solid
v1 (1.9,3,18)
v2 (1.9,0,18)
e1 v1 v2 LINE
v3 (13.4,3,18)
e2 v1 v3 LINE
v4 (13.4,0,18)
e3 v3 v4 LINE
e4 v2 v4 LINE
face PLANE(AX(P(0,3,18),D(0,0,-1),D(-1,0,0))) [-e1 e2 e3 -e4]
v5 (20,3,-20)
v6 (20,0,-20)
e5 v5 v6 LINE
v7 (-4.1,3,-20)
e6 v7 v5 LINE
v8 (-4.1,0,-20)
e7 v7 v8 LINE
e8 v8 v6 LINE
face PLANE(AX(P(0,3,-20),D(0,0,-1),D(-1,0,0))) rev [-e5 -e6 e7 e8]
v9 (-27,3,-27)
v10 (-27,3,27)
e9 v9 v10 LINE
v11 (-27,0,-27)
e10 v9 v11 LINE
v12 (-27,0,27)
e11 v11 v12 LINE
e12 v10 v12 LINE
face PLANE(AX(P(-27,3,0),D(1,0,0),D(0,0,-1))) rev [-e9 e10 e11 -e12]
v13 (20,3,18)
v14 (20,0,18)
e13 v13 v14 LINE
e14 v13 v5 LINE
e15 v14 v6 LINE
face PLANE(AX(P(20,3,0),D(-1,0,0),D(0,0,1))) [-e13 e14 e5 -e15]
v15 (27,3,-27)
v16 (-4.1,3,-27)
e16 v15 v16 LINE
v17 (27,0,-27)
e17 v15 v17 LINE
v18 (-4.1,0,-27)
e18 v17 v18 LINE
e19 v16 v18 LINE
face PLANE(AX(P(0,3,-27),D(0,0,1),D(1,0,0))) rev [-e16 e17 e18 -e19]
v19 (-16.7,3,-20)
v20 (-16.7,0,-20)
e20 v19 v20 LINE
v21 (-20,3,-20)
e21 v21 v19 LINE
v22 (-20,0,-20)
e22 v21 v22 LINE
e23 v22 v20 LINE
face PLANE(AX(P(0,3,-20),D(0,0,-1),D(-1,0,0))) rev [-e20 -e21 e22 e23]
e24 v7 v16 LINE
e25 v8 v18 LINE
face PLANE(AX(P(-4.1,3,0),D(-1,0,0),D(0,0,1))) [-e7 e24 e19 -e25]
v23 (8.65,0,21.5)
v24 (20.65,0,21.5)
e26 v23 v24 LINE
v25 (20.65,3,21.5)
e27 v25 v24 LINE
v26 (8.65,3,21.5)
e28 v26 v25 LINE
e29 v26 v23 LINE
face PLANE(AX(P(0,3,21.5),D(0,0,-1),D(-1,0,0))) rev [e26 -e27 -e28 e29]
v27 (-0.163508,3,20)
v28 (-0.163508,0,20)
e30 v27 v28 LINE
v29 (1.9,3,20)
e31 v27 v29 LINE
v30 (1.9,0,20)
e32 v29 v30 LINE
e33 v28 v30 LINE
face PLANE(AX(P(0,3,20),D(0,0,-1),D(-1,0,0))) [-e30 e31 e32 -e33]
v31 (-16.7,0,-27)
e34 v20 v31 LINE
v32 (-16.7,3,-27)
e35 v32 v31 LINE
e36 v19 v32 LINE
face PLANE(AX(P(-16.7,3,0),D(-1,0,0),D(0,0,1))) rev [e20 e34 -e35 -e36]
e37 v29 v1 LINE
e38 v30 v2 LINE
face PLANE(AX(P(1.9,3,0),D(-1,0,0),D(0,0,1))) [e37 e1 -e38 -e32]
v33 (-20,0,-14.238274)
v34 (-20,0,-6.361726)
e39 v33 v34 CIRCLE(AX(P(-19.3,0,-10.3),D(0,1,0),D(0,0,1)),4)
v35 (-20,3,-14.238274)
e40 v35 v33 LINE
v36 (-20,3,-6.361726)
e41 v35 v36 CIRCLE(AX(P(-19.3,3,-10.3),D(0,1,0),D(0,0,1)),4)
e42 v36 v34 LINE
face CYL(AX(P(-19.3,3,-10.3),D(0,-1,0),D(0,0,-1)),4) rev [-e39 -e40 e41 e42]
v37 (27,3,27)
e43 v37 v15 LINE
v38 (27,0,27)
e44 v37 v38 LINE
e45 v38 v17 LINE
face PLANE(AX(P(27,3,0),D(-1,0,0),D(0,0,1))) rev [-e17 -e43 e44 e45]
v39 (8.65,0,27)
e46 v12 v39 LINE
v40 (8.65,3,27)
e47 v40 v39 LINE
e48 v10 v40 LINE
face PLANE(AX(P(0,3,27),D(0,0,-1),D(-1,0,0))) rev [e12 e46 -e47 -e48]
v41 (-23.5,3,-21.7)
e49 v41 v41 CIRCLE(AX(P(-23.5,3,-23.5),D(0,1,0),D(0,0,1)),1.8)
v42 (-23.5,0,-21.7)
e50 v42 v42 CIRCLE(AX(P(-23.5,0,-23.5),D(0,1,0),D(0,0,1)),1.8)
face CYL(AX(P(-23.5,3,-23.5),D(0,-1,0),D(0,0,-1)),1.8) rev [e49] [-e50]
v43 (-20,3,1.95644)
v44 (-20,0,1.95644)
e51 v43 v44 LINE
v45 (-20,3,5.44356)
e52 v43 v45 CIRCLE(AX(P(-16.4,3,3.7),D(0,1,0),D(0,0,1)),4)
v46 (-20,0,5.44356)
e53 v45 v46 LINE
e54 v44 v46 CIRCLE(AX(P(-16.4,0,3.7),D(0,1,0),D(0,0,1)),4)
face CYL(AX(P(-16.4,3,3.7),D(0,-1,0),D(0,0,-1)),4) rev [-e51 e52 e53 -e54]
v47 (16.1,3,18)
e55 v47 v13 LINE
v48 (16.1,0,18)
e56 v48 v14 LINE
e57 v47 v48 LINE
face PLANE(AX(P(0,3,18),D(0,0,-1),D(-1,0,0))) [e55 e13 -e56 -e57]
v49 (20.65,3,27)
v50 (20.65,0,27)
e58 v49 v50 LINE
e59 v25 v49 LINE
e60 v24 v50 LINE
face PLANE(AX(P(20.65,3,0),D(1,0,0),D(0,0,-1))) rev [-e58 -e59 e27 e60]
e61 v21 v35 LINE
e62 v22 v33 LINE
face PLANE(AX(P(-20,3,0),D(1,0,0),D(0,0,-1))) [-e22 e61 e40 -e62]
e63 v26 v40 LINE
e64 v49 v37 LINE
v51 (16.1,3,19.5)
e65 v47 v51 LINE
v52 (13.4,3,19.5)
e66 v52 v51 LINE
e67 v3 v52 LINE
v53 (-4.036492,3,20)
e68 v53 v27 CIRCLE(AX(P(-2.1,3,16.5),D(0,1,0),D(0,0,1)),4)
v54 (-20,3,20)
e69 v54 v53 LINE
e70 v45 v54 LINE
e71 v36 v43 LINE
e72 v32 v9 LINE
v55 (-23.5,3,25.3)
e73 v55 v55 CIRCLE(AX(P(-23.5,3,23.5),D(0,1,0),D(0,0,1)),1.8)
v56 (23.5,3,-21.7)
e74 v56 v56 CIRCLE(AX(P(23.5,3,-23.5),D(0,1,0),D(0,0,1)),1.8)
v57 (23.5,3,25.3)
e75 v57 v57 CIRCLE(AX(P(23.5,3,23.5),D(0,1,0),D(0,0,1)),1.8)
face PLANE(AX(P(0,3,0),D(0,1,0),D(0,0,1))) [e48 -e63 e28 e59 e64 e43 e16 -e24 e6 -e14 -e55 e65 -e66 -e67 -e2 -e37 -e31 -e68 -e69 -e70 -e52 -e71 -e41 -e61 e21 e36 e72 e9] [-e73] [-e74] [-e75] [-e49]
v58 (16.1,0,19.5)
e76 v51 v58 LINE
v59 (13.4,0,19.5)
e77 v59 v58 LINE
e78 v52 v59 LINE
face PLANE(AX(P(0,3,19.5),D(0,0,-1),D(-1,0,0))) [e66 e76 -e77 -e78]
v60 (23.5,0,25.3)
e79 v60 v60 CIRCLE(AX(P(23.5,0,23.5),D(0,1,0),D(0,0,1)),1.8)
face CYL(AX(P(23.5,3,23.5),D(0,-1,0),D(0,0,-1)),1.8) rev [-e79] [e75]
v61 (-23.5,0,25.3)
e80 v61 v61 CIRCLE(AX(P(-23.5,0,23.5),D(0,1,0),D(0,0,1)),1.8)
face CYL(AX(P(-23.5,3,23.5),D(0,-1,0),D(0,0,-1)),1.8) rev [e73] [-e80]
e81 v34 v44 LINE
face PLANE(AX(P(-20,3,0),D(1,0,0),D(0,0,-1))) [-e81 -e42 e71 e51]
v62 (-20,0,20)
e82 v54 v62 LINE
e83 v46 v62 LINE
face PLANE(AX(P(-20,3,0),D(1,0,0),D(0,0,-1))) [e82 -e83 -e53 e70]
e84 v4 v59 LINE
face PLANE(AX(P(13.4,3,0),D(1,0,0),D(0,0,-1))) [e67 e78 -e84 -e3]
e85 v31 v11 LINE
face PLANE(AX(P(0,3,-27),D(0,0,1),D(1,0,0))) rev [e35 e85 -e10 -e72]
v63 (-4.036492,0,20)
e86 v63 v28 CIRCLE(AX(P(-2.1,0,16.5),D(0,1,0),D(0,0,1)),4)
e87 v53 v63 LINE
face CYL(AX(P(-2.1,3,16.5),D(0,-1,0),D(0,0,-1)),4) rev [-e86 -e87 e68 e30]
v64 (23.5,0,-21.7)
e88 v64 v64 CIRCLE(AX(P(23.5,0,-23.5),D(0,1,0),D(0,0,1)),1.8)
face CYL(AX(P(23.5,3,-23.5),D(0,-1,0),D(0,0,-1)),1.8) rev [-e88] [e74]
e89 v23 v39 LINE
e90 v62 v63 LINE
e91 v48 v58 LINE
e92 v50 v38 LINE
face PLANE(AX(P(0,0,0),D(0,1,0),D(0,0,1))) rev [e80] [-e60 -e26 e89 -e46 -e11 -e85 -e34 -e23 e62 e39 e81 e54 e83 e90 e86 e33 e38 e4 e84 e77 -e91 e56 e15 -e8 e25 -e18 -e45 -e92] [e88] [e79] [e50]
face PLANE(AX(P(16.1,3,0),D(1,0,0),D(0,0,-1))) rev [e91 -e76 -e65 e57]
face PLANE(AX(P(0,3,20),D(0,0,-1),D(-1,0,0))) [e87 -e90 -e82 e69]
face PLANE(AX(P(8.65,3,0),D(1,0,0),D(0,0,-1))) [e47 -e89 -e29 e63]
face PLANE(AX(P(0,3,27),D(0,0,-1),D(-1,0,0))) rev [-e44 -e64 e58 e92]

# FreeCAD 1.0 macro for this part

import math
import FreeCAD as App
import Part
import Sketcher
from FreeCAD import Vector
Q = App.Units.Quantity

doc = App.newDocument("Part")
params = doc.addObject("Spreadsheet::Sheet", "Params")
for row, (alias, value) in enumerate([
    ("sketch1_radius", "4 mm"),
    ("sketch1_diameter", "3.6 mm"),
    ("sketch1_width", "12 mm"),
    ("sketch1_height", "54 mm"),
    ("sketch1_height2", "7 mm"),
    ("pad1_length", "3 mm"),
], start=1):
    params.set(f"A{row}", alias)
    params.set(f"B{row}", "=" + value)
    params.setAlias(f"B{row}", alias)

body = doc.addObject("PartDesign::Body", "Body")

# Sketch on XZ plane
sketch1 = body.newObject("Sketcher::SketchObject", "Sketch")
sketch1.AttachmentSupport = (doc.getObject("XZ_Plane"), [""])
sketch1.MapMode = "FlatFace"
sketch1.addGeometry(Part.LineSegment(Vector(8.65, 27, 0), Vector(8.65, 21.5, 0)), False)
sketch1.addGeometry(Part.LineSegment(Vector(8.65, 21.5, 0), Vector(20.65, 21.5, 0)), False)
sketch1.addGeometry(Part.LineSegment(Vector(20.65, 21.5, 0), Vector(20.65, 27, 0)), False)
sketch1.addGeometry(Part.LineSegment(Vector(20.65, 27, 0), Vector(27, 27, 0)), False)
sketch1.addGeometry(Part.LineSegment(Vector(27, 27, 0), Vector(27, -27, 0)), False)
sketch1.addGeometry(Part.LineSegment(Vector(27, -27, 0), Vector(-4.1, -27, 0)), False)
sketch1.addGeometry(Part.LineSegment(Vector(-4.1, -27, 0), Vector(-4.1, -20, 0)), False)
sketch1.addGeometry(Part.LineSegment(Vector(-4.1, -20, 0), Vector(20, -20, 0)), False)
sketch1.addGeometry(Part.LineSegment(Vector(20, -20, 0), Vector(20, 18, 0)), False)
sketch1.addGeometry(Part.LineSegment(Vector(20, 18, 0), Vector(16.1, 18, 0)), False)
sketch1.addGeometry(Part.LineSegment(Vector(16.1, 18, 0), Vector(16.1, 19.5, 0)), False)
sketch1.addGeometry(Part.LineSegment(Vector(16.1, 19.5, 0), Vector(13.4, 19.5, 0)), False)
sketch1.addGeometry(Part.LineSegment(Vector(13.4, 19.5, 0), Vector(13.4, 18, 0)), False)
sketch1.addGeometry(Part.LineSegment(Vector(13.4, 18, 0), Vector(1.9, 18, 0)), False)
sketch1.addGeometry(Part.LineSegment(Vector(1.9, 18, 0), Vector(1.9, 20, 0)), False)
sketch1.addGeometry(Part.LineSegment(Vector(1.9, 20, 0), Vector(-0.163508, 20, 0)), False)
sketch1.addGeometry(Part.ArcOfCircle(Part.Circle(Vector(-2.1, 16.5, 0), Vector(0, 0, 1), 4), math.radians(61.044976), math.radians(118.955024)), False)
sketch1.addGeometry(Part.LineSegment(Vector(-4.036492, 20, 0), Vector(-20, 20, 0)), False)
sketch1.addGeometry(Part.LineSegment(Vector(-20, 20, 0), Vector(-20, 5.44356, 0)), False)
sketch1.addGeometry(Part.ArcOfCircle(Part.Circle(Vector(-16.4, 3.7, 0), Vector(0, 0, 1), 4), math.radians(154.158067), math.radians(205.841933)), False)
sketch1.addGeometry(Part.LineSegment(Vector(-20, 1.95644, 0), Vector(-20, -6.361726, 0)), False)
sketch1.addGeometry(Part.ArcOfCircle(Part.Circle(Vector(-19.3, -10.3, 0), Vector(0, 0, 1), 4), math.radians(100.078658), math.radians(259.921342)), False)
sketch1.addGeometry(Part.LineSegment(Vector(-20, -14.238274, 0), Vector(-20, -20, 0)), False)
sketch1.addGeometry(Part.LineSegment(Vector(-20, -20, 0), Vector(-16.7, -20, 0)), False)
sketch1.addGeometry(Part.LineSegment(Vector(-16.7, -20, 0), Vector(-16.7, -27, 0)), False)
sketch1.addGeometry(Part.LineSegment(Vector(-16.7, -27, 0), Vector(-27, -27, 0)), False)
sketch1.addGeometry(Part.LineSegment(Vector(-27, -27, 0), Vector(-27, 27, 0)), False)
sketch1.addGeometry(Part.LineSegment(Vector(-27, 27, 0), Vector(8.65, 27, 0)), False)
sketch1.addGeometry(Part.Circle(Vector(-23.5, 23.5, 0), Vector(0, 0, 1), 1.8), False)
sketch1.addGeometry(Part.Circle(Vector(-23.5, -23.5, 0), Vector(0, 0, 1), 1.8), False)
sketch1.addGeometry(Part.Circle(Vector(23.5, 23.5, 0), Vector(0, 0, 1), 1.8), False)
sketch1.addGeometry(Part.Circle(Vector(23.5, -23.5, 0), Vector(0, 0, 1), 1.8), False)
sketch1.addConstraint(Sketcher.Constraint("Coincident", 0, 2, 1, 1))
sketch1.addConstraint(Sketcher.Constraint("Coincident", 1, 2, 2, 1))
sketch1.addConstraint(Sketcher.Constraint("Coincident", 2, 2, 3, 1))
sketch1.addConstraint(Sketcher.Constraint("Coincident", 3, 2, 4, 1))
sketch1.addConstraint(Sketcher.Constraint("Coincident", 4, 2, 5, 1))
sketch1.addConstraint(Sketcher.Constraint("Coincident", 5, 2, 6, 1))
sketch1.addConstraint(Sketcher.Constraint("Coincident", 6, 2, 7, 1))
sketch1.addConstraint(Sketcher.Constraint("Coincident", 7, 2, 8, 1))
sketch1.addConstraint(Sketcher.Constraint("Coincident", 8, 2, 9, 1))
sketch1.addConstraint(Sketcher.Constraint("Coincident", 9, 2, 10, 1))
sketch1.addConstraint(Sketcher.Constraint("Coincident", 10, 2, 11, 1))
sketch1.addConstraint(Sketcher.Constraint("Coincident", 11, 2, 12, 1))
sketch1.addConstraint(Sketcher.Constraint("Coincident", 12, 2, 13, 1))
sketch1.addConstraint(Sketcher.Constraint("Coincident", 13, 2, 14, 1))
sketch1.addConstraint(Sketcher.Constraint("Coincident", 14, 2, 15, 1))
sketch1.addConstraint(Sketcher.Constraint("Coincident", 15, 2, 16, 1))
sketch1.addConstraint(Sketcher.Constraint("Coincident", 16, 2, 17, 1))
sketch1.addConstraint(Sketcher.Constraint("Coincident", 17, 2, 18, 1))
sketch1.addConstraint(Sketcher.Constraint("Coincident", 18, 2, 19, 1))
sketch1.addConstraint(Sketcher.Constraint("Coincident", 19, 2, 20, 1))
sketch1.addConstraint(Sketcher.Constraint("Coincident", 20, 2, 21, 1))
sketch1.addConstraint(Sketcher.Constraint("Coincident", 21, 2, 22, 1))
sketch1.addConstraint(Sketcher.Constraint("Coincident", 22, 2, 23, 1))
sketch1.addConstraint(Sketcher.Constraint("Coincident", 23, 2, 24, 1))
sketch1.addConstraint(Sketcher.Constraint("Coincident", 24, 2, 25, 1))
sketch1.addConstraint(Sketcher.Constraint("Coincident", 25, 2, 26, 1))
sketch1.addConstraint(Sketcher.Constraint("Coincident", 26, 2, 27, 1))
sketch1.addConstraint(Sketcher.Constraint("Coincident", 27, 2, 0, 1))
sketch1.addConstraint(Sketcher.Constraint("Vertical", 0))
sketch1.addConstraint(Sketcher.Constraint("Horizontal", 1))
sketch1.addConstraint(Sketcher.Constraint("Vertical", 2))
sketch1.addConstraint(Sketcher.Constraint("Horizontal", 3))
sketch1.addConstraint(Sketcher.Constraint("Vertical", 4))
sketch1.addConstraint(Sketcher.Constraint("Horizontal", 5))
sketch1.addConstraint(Sketcher.Constraint("Vertical", 6))
sketch1.addConstraint(Sketcher.Constraint("Horizontal", 7))
sketch1.addConstraint(Sketcher.Constraint("Vertical", 8))
sketch1.addConstraint(Sketcher.Constraint("Horizontal", 9))
sketch1.addConstraint(Sketcher.Constraint("Vertical", 10))
sketch1.addConstraint(Sketcher.Constraint("Horizontal", 11))
sketch1.addConstraint(Sketcher.Constraint("Vertical", 12))
sketch1.addConstraint(Sketcher.Constraint("Horizontal", 13))
sketch1.addConstraint(Sketcher.Constraint("Vertical", 14))
sketch1.addConstraint(Sketcher.Constraint("Horizontal", 15))
sketch1.addConstraint(Sketcher.Constraint("Horizontal", 17))
sketch1.addConstraint(Sketcher.Constraint("Vertical", 18))
sketch1.addConstraint(Sketcher.Constraint("Vertical", 20))
sketch1.addConstraint(Sketcher.Constraint("Vertical", 22))
sketch1.addConstraint(Sketcher.Constraint("Horizontal", 23))
sketch1.addConstraint(Sketcher.Constraint("Vertical", 24))
sketch1.addConstraint(Sketcher.Constraint("Horizontal", 25))
sketch1.addConstraint(Sketcher.Constraint("Vertical", 26))
sketch1.addConstraint(Sketcher.Constraint("Horizontal", 27))
sketch1.addConstraint(Sketcher.Constraint("Equal", 16, 19))
sketch1.addConstraint(Sketcher.Constraint("Equal", 19, 21))
sketch1.addConstraint(Sketcher.Constraint("Equal", 28, 29))
sketch1.addConstraint(Sketcher.Constraint("Equal", 29, 30))
sketch1.addConstraint(Sketcher.Constraint("Equal", 30, 31))
sketch1.addConstraint(Sketcher.Constraint("Symmetric", 29, 3, 30, 3, -1, 1))
sketch1.addConstraint(Sketcher.Constraint("Symmetric", 28, 3, 31, 3, -1, 1))
sketch1.addConstraint(Sketcher.Constraint("Symmetric", 7, 2, 17, 2, -1, 1))
sketch1.addConstraint(Sketcher.Constraint("Symmetric", 3, 2, 25, 2, -1, 1))
sketch1.addConstraint(Sketcher.Constraint("Symmetric", 28, 3, 30, 3, -2))
sketch1.addConstraint(Sketcher.Constraint("Symmetric", 7, 2, 22, 2, -2))
sketch1.addConstraint(Sketcher.Constraint("Horizontal", 9, 2, 12, 2))
sketch1.addConstraint(Sketcher.Constraint("Horizontal", 15, 2, 16, 2))
sketch1.addConstraint(Sketcher.Constraint("Horizontal", 5, 2, 24, 2))
sketch1.addConstraint(Sketcher.Constraint("Horizontal", 3, 2, 26, 2))
sketch1.addConstraint(Sketcher.Constraint("Vertical", 18, 2, 19, 2))
sketch1.addConstraint(Sketcher.Constraint("Radius", 16, Q("4 mm")))
sketch1.addConstraint(Sketcher.Constraint("Diameter", 28, Q("3.6 mm")))
sketch1.addConstraint(Sketcher.Constraint("DistanceX", 1, 1, 1, 2, Q("12 mm")))
sketch1.addConstraint(Sketcher.Constraint("DistanceY", 4, 2, 4, 1, Q("54 mm")))
sketch1.addConstraint(Sketcher.Constraint("DistanceY", 6, 1, 6, 2, Q("7 mm")))
sketch1.addConstraint(Sketcher.Constraint("DistanceY", 8, 1, 8, 2, Q("38 mm")))
sketch1.addConstraint(Sketcher.Constraint("DistanceX", 5, 2, 5, 1, Q("31.1 mm")))
sketch1.addConstraint(Sketcher.Constraint("DistanceX", 7, 1, 7, 2, Q("24.1 mm")))
sketch1.addConstraint(Sketcher.Constraint("DistanceX", 9, 2, 9, 1, Q("3.9 mm")))
sketch1.addConstraint(Sketcher.Constraint("DistanceX", 11, 2, 11, 1, Q("2.7 mm")))
sketch1.addConstraint(Sketcher.Constraint("DistanceX", 13, 2, 13, 1, Q("11.5 mm")))
sketch1.addConstraint(Sketcher.Constraint("DistanceX", 23, 1, 23, 2, Q("3.3 mm")))
sketch1.addConstraint(Sketcher.Constraint("DistanceY", 0, 2, 0, 1, Q("5.5 mm")))
sketch1.addConstraint(Sketcher.Constraint("DistanceY", 10, 1, 10, 2, Q("1.5 mm")))
sketch1.addConstraint(Sketcher.Constraint("DistanceX", -1, 1, 3, 2, Q("27 mm")))
sketch1.addConstraint(Sketcher.Constraint("DistanceY", 21, 3, 19, 3, Q("14 mm")))
sketch1.addConstraint(Sketcher.Constraint("DistanceY", 16, 3, 28, 3, Q("7 mm")))
sketch1.addConstraint(Sketcher.Constraint("DistanceY", 29, 3, 16, 3, Q("40 mm")))
sketch1.addConstraint(Sketcher.Constraint("DistanceX", 28, 3, 30, 3, Q("47 mm")))
sketch1.addConstraint(Sketcher.Constraint("DistanceX", 16, 3, 13, 2, Q("4 mm")))
sketch1.addConstraint(Sketcher.Constraint("DistanceX", 3, 1, 3, 2, Q("6.35 mm")))
sketch1.addConstraint(Sketcher.Constraint("DistanceX", 19, 3, -1, 1, Q("16.4 mm")))
sketch1.addConstraint(Sketcher.Constraint("DistanceY", -1, 1, 19, 3, Q("3.7 mm")))
sketch1.addConstraint(Sketcher.Constraint("DistanceX", 21, 3, -1, 1, Q("19.3 mm")))
sketch1.setExpression("Constraints[69]", "Params.sketch1_radius")
sketch1.setExpression("Constraints[70]", "Params.sketch1_diameter")
sketch1.setExpression("Constraints[71]", "Params.sketch1_width")
sketch1.setExpression("Constraints[72]", "Params.sketch1_height")
sketch1.setExpression("Constraints[73]", "Params.sketch1_height2")
pad1 = body.newObject("PartDesign::Pad", "Pad")
pad1.Profile = sketch1
pad1.setExpression("Length", "Params.pad1_length")
pad1.Reversed = True

doc.recompute()
